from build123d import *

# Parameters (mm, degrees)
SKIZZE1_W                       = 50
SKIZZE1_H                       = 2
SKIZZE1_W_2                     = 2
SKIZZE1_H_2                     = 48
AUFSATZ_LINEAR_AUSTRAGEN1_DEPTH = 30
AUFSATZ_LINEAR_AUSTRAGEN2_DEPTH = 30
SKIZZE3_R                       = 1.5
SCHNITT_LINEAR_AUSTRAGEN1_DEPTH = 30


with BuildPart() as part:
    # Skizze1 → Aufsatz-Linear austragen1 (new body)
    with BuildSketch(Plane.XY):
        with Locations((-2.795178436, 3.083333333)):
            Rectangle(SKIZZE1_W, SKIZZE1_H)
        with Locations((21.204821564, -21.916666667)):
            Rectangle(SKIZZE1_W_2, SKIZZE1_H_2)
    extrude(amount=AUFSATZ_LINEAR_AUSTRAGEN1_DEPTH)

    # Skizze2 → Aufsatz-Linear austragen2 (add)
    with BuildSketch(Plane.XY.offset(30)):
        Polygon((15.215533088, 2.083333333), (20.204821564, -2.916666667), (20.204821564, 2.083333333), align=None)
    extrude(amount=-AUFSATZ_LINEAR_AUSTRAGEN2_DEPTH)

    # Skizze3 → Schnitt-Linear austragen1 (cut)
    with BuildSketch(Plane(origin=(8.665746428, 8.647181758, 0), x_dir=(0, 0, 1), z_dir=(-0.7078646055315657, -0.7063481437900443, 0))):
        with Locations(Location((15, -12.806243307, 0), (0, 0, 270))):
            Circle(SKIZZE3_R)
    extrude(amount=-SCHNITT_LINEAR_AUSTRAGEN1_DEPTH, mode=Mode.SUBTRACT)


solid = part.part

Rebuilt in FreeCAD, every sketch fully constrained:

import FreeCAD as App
import Part
import Sketcher

V = App.Vector
Q = App.Units.Quantity

doc = App.newDocument("Part")
body = doc.addObject("PartDesign::Body", "Body")

# Sketch on XY plane
sketch1 = doc.addObject("Sketcher::SketchObject", "Sketch")
body.addObject(sketch1)
sketch1.AttachmentSupport = (doc.XY_Plane, [""])
sketch1.MapMode = "FlatFace"
sketch1.addGeometry([
    Part.LineSegment(V(-27.8, 4.1, 0), V(-27.8, 2.1, 0)),  # 0
    Part.LineSegment(V(-27.8, 2.1, 0), V(20.2, 2.1, 0)),  # 1
    Part.LineSegment(V(20.2, 2.1, 0), V(20.2, -45.9, 0)),  # 2
    Part.LineSegment(V(20.2, -45.9, 0), V(22.2, -45.9, 0)),  # 3
    Part.LineSegment(V(22.2, -45.9, 0), V(22.2, 4.1, 0)),  # 4
    Part.LineSegment(V(22.2, 4.1, 0), V(-27.8, 4.1, 0)),  # 5
], False)
sketch1.addConstraint([
    Sketcher.Constraint("Coincident", 0, 2, 1, 1),
    Sketcher.Constraint("Coincident", 1, 2, 2, 1),
    Sketcher.Constraint("Coincident", 2, 2, 3, 1),
    Sketcher.Constraint("Coincident", 3, 2, 4, 1),
    Sketcher.Constraint("Coincident", 4, 2, 5, 1),
    Sketcher.Constraint("Coincident", 5, 2, 0, 1),
    Sketcher.Constraint("Vertical", 0),
    Sketcher.Constraint("Horizontal", 1),
    Sketcher.Constraint("Vertical", 2),
    Sketcher.Constraint("Horizontal", 3),
    Sketcher.Constraint("Vertical", 4),
    Sketcher.Constraint("Horizontal", 5),
    Sketcher.Constraint("Equal", 3, 0),
    Sketcher.Constraint("Equal", 1, 2),
    Sketcher.Constraint("DistanceX", 1, 1, 1, 2, Q("48 mm")),
    Sketcher.Constraint("DistanceX", 3, 1, 3, 2, Q("2 mm")),
    Sketcher.Constraint("DistanceX", 0, 2, -1, 1, Q("27.795178 mm")),
    Sketcher.Constraint("DistanceY", -1, 1, 0, 2, Q("2.083333 mm")),
])
pad1 = doc.addObject("PartDesign::Pad", "Pad")
body.addObject(pad1)
pad1.Profile = sketch1
pad1.Length = 30

# Sketch on XY plane
sketch2 = doc.addObject("Sketcher::SketchObject", "Sketch001")
body.addObject(sketch2)
sketch2.AttachmentSupport = (doc.XY_Plane, [""])
sketch2.MapMode = "FlatFace"
sketch2.AttachmentOffset = App.Placement(V(0, 0, 30), App.Rotation())
sketch2.addGeometry([
    Part.LineSegment(V(15.2, 2.1, 0), V(20.2, -2.9, 0)),
    Part.LineSegment(V(20.2, -2.9, 0), V(20.2, 2.1, 0)),
    Part.LineSegment(V(20.2, 2.1, 0), V(15.2, 2.1, 0)),
], False)
sketch2.addConstraint([
    Sketcher.Constraint("Coincident", 0, 2, 1, 1),
    Sketcher.Constraint("Coincident", 1, 2, 2, 1),
    Sketcher.Constraint("Coincident", 2, 2, 0, 1),
    Sketcher.Constraint("Vertical", 1),
    Sketcher.Constraint("Horizontal", 2),
    Sketcher.Constraint("DistanceY", 1, 1, 1, 2, Q("5 mm")),
    Sketcher.Constraint("DistanceX", 2, 2, 2, 1, Q("4.989288 mm")),
    Sketcher.Constraint("DistanceX", -1, 1, 0, 2, Q("20.204822 mm")),
    Sketcher.Constraint("DistanceY", 0, 2, -1, 1, Q("2.916667 mm")),
])
pad2 = doc.addObject("PartDesign::Pad", "Pad001")
body.addObject(pad2)
pad2.Profile = sketch2
pad2.Length = 30
pad2.Reversed = True

# Sketch on an angled plane
sketch3 = doc.addObject("Sketcher::SketchObject", "Sketch002")
body.addObject(sketch3)
sketch3.Placement = App.Placement(V(8.665746, 8.647182, 0), App.Rotation(V(0, 0, 1), V(-0.706348144, 0.707864606, 0), V(-0.707864606, -0.706348144, 0), "ZXY"))
sketch3.addGeometry(Part.Circle(V(15, -12.8, 0), V(0, 0, 1), 1.5), False)
sketch3.addConstraint([
    Sketcher.Constraint("Diameter", 0, Q("3 mm")),
    Sketcher.Constraint("DistanceX", -1, 1, 0, 3, Q("15 mm")),
    Sketcher.Constraint("DistanceY", 0, 3, -1, 1, Q("12.806243 mm")),
])
pocket1 = doc.addObject("PartDesign::Pocket", "Pocket")
body.addObject(pocket1)
pocket1.Profile = sketch3
pocket1.Length = 30

doc.recompute()
